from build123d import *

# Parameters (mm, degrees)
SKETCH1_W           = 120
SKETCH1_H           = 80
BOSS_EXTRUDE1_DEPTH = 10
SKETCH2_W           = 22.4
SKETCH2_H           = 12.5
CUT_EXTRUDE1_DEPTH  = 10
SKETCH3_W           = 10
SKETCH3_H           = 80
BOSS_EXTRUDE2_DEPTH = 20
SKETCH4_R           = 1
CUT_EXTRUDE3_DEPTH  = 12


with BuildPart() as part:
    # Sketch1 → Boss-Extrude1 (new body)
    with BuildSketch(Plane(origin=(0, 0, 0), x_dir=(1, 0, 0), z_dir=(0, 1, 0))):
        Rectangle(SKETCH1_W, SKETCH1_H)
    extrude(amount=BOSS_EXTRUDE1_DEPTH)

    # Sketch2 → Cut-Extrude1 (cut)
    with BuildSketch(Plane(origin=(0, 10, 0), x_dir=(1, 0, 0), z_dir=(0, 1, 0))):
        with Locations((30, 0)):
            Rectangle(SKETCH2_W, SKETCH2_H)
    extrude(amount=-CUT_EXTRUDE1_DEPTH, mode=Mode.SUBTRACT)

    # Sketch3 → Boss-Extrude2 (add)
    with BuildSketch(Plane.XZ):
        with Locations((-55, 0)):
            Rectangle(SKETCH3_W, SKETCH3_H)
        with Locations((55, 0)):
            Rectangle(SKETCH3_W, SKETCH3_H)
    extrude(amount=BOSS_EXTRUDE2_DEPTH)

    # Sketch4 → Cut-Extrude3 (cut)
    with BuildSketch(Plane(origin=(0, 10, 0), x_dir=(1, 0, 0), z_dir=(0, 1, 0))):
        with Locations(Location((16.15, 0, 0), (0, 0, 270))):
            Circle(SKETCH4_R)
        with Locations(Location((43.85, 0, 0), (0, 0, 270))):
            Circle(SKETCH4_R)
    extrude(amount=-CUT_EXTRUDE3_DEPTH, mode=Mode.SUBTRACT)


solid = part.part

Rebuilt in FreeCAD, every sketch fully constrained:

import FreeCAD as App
import Part
import Sketcher
Q = App.Units.Quantity


def add_polygon(sketch, points):
    """Adds a closed chain of lines whose ends are joined by coincident constraints."""
    first, n = sketch.GeometryCount, len(points)
    for a, b in zip(points, points[1:] + points[:1]):
        sketch.addGeometry(Part.LineSegment(App.Vector(*a, 0), App.Vector(*b, 0)), False)
    for i in range(n):
        sketch.addConstraint(Sketcher.Constraint("Coincident", first + i, 2, first + (i + 1) % n, 1))

doc = App.newDocument("Part")
body = doc.addObject("PartDesign::Body", "Body")

# Sketch on XZ plane
sketch1 = body.newObject("Sketcher::SketchObject", "Sketch")
sketch1.AttachmentSupport = (doc.getObject("XZ_Plane"), [""])
sketch1.MapMode = "FlatFace"
add_polygon(sketch1, [(-60, -40), (-60, 40), (60, 40), (60, -40)])  # lines 0-3
sketch1.addConstraint([
    Sketcher.Constraint("Vertical", 0),
    Sketcher.Constraint("Horizontal", 1),
    Sketcher.Constraint("Vertical", 2),
    Sketcher.Constraint("Horizontal", 3),
    Sketcher.Constraint("Symmetric", 0, 2, 2, 2, -1, 1),
    Sketcher.Constraint("DistanceX", 1, 1, 1, 2, Q("120 mm")),
    Sketcher.Constraint("DistanceY", 0, 1, 0, 2, Q("80 mm")),
])
pad1 = body.newObject("PartDesign::Pad", "Pad")
pad1.Profile = sketch1
pad1.Length = 10
pad1.Reversed = True

# Sketch on XZ plane
sketch2 = body.newObject("Sketcher::SketchObject", "Sketch001")
sketch2.AttachmentSupport = (doc.getObject("XZ_Plane"), [""])
sketch2.MapMode = "FlatFace"
sketch2.AttachmentOffset = App.Placement(App.Vector(0, 0, -10), App.Rotation())
add_polygon(sketch2, [(19, -6), (19, 6), (41, 6), (41, -6)])  # lines 0-3
sketch2.addConstraint([
    Sketcher.Constraint("Vertical", 0),
    Sketcher.Constraint("Horizontal", 1),
    Sketcher.Constraint("Vertical", 2),
    Sketcher.Constraint("Horizontal", 3),
    Sketcher.Constraint("DistanceX", 1, 1, 1, 2, Q("22.4 mm")),
    Sketcher.Constraint("DistanceY", 0, 1, 0, 2, Q("12.5 mm")),
    Sketcher.Constraint("DistanceX", -1, 1, 0, 2, Q("18.8 mm")),
    Sketcher.Constraint("DistanceY", -1, 1, 0, 2, Q("6.25 mm")),
])
pocket1 = body.newObject("PartDesign::Pocket", "Pocket")
pocket1.Profile = sketch2
pocket1.Length = 10
pocket1.Reversed = True

# Sketch on XZ plane
sketch3 = body.newObject("Sketcher::SketchObject", "Sketch002")
sketch3.AttachmentSupport = (doc.getObject("XZ_Plane"), [""])
sketch3.MapMode = "FlatFace"
add_polygon(sketch3, [(-60, 40), (-60, -40), (-50, -40), (-50, 40)])  # lines 0-3
add_polygon(sketch3, [(50, 40), (50, -40), (60, -40), (60, 40)])  # lines 4-7
sketch3.addConstraint([
    Sketcher.Constraint("Vertical", 0),
    Sketcher.Constraint("Horizontal", 1),
    Sketcher.Constraint("Vertical", 2),
    Sketcher.Constraint("Horizontal", 3),
    Sketcher.Constraint("Vertical", 4),
    Sketcher.Constraint("Horizontal", 5),
    Sketcher.Constraint("Vertical", 6),
    Sketcher.Constraint("Horizontal", 7),
    Sketcher.Constraint("Symmetric", 2, 2, 4, 2, -1, 1),
    Sketcher.Constraint("Symmetric", 0, 2, 6, 2, -1, 1),
    Sketcher.Constraint("Horizontal", 1, 2, 4, 2),
    Sketcher.Constraint("DistanceX", 1, 1, 1, 2, Q("10 mm")),
    Sketcher.Constraint("DistanceY", 0, 2, 0, 1, Q("80 mm")),
    Sketcher.Constraint("DistanceX", 0, 2, -1, 1, Q("60 mm")),
])
pad2 = body.newObject("PartDesign::Pad", "Pad001")
pad2.Profile = sketch3
pad2.Length = 20

# Sketch on XZ plane
sketch4 = body.newObject("Sketcher::SketchObject", "Sketch003")
sketch4.AttachmentSupport = (doc.getObject("XZ_Plane"), [""])
sketch4.MapMode = "FlatFace"
sketch4.AttachmentOffset = App.Placement(App.Vector(0, 0, -10), App.Rotation())
sketch4.addGeometry([
    Part.Circle(App.Vector(16.1, 0, 0), App.Vector(0, 0, 1), 1),
    Part.Circle(App.Vector(43.9, 0, 0), App.Vector(0, 0, 1), 1),
], False)
sketch4.addConstraint([
    Sketcher.Constraint("Equal", 0, 1),
    Sketcher.Constraint("PointOnObject", 0, 3, -1),
    Sketcher.Constraint("PointOnObject", 1, 3, -1),
    Sketcher.Constraint("Diameter", 0, Q("2 mm")),
    Sketcher.Constraint("DistanceX", 0, 3, 1, 3, Q("27.7 mm")),
    Sketcher.Constraint("DistanceX", -1, 1, 0, 3, Q("16.15 mm")),
])
pocket2 = body.newObject("PartDesign::Pocket", "Pocket001")
pocket2.Profile = sketch4
pocket2.Length = 12
pocket2.Reversed = True

doc.recompute()
